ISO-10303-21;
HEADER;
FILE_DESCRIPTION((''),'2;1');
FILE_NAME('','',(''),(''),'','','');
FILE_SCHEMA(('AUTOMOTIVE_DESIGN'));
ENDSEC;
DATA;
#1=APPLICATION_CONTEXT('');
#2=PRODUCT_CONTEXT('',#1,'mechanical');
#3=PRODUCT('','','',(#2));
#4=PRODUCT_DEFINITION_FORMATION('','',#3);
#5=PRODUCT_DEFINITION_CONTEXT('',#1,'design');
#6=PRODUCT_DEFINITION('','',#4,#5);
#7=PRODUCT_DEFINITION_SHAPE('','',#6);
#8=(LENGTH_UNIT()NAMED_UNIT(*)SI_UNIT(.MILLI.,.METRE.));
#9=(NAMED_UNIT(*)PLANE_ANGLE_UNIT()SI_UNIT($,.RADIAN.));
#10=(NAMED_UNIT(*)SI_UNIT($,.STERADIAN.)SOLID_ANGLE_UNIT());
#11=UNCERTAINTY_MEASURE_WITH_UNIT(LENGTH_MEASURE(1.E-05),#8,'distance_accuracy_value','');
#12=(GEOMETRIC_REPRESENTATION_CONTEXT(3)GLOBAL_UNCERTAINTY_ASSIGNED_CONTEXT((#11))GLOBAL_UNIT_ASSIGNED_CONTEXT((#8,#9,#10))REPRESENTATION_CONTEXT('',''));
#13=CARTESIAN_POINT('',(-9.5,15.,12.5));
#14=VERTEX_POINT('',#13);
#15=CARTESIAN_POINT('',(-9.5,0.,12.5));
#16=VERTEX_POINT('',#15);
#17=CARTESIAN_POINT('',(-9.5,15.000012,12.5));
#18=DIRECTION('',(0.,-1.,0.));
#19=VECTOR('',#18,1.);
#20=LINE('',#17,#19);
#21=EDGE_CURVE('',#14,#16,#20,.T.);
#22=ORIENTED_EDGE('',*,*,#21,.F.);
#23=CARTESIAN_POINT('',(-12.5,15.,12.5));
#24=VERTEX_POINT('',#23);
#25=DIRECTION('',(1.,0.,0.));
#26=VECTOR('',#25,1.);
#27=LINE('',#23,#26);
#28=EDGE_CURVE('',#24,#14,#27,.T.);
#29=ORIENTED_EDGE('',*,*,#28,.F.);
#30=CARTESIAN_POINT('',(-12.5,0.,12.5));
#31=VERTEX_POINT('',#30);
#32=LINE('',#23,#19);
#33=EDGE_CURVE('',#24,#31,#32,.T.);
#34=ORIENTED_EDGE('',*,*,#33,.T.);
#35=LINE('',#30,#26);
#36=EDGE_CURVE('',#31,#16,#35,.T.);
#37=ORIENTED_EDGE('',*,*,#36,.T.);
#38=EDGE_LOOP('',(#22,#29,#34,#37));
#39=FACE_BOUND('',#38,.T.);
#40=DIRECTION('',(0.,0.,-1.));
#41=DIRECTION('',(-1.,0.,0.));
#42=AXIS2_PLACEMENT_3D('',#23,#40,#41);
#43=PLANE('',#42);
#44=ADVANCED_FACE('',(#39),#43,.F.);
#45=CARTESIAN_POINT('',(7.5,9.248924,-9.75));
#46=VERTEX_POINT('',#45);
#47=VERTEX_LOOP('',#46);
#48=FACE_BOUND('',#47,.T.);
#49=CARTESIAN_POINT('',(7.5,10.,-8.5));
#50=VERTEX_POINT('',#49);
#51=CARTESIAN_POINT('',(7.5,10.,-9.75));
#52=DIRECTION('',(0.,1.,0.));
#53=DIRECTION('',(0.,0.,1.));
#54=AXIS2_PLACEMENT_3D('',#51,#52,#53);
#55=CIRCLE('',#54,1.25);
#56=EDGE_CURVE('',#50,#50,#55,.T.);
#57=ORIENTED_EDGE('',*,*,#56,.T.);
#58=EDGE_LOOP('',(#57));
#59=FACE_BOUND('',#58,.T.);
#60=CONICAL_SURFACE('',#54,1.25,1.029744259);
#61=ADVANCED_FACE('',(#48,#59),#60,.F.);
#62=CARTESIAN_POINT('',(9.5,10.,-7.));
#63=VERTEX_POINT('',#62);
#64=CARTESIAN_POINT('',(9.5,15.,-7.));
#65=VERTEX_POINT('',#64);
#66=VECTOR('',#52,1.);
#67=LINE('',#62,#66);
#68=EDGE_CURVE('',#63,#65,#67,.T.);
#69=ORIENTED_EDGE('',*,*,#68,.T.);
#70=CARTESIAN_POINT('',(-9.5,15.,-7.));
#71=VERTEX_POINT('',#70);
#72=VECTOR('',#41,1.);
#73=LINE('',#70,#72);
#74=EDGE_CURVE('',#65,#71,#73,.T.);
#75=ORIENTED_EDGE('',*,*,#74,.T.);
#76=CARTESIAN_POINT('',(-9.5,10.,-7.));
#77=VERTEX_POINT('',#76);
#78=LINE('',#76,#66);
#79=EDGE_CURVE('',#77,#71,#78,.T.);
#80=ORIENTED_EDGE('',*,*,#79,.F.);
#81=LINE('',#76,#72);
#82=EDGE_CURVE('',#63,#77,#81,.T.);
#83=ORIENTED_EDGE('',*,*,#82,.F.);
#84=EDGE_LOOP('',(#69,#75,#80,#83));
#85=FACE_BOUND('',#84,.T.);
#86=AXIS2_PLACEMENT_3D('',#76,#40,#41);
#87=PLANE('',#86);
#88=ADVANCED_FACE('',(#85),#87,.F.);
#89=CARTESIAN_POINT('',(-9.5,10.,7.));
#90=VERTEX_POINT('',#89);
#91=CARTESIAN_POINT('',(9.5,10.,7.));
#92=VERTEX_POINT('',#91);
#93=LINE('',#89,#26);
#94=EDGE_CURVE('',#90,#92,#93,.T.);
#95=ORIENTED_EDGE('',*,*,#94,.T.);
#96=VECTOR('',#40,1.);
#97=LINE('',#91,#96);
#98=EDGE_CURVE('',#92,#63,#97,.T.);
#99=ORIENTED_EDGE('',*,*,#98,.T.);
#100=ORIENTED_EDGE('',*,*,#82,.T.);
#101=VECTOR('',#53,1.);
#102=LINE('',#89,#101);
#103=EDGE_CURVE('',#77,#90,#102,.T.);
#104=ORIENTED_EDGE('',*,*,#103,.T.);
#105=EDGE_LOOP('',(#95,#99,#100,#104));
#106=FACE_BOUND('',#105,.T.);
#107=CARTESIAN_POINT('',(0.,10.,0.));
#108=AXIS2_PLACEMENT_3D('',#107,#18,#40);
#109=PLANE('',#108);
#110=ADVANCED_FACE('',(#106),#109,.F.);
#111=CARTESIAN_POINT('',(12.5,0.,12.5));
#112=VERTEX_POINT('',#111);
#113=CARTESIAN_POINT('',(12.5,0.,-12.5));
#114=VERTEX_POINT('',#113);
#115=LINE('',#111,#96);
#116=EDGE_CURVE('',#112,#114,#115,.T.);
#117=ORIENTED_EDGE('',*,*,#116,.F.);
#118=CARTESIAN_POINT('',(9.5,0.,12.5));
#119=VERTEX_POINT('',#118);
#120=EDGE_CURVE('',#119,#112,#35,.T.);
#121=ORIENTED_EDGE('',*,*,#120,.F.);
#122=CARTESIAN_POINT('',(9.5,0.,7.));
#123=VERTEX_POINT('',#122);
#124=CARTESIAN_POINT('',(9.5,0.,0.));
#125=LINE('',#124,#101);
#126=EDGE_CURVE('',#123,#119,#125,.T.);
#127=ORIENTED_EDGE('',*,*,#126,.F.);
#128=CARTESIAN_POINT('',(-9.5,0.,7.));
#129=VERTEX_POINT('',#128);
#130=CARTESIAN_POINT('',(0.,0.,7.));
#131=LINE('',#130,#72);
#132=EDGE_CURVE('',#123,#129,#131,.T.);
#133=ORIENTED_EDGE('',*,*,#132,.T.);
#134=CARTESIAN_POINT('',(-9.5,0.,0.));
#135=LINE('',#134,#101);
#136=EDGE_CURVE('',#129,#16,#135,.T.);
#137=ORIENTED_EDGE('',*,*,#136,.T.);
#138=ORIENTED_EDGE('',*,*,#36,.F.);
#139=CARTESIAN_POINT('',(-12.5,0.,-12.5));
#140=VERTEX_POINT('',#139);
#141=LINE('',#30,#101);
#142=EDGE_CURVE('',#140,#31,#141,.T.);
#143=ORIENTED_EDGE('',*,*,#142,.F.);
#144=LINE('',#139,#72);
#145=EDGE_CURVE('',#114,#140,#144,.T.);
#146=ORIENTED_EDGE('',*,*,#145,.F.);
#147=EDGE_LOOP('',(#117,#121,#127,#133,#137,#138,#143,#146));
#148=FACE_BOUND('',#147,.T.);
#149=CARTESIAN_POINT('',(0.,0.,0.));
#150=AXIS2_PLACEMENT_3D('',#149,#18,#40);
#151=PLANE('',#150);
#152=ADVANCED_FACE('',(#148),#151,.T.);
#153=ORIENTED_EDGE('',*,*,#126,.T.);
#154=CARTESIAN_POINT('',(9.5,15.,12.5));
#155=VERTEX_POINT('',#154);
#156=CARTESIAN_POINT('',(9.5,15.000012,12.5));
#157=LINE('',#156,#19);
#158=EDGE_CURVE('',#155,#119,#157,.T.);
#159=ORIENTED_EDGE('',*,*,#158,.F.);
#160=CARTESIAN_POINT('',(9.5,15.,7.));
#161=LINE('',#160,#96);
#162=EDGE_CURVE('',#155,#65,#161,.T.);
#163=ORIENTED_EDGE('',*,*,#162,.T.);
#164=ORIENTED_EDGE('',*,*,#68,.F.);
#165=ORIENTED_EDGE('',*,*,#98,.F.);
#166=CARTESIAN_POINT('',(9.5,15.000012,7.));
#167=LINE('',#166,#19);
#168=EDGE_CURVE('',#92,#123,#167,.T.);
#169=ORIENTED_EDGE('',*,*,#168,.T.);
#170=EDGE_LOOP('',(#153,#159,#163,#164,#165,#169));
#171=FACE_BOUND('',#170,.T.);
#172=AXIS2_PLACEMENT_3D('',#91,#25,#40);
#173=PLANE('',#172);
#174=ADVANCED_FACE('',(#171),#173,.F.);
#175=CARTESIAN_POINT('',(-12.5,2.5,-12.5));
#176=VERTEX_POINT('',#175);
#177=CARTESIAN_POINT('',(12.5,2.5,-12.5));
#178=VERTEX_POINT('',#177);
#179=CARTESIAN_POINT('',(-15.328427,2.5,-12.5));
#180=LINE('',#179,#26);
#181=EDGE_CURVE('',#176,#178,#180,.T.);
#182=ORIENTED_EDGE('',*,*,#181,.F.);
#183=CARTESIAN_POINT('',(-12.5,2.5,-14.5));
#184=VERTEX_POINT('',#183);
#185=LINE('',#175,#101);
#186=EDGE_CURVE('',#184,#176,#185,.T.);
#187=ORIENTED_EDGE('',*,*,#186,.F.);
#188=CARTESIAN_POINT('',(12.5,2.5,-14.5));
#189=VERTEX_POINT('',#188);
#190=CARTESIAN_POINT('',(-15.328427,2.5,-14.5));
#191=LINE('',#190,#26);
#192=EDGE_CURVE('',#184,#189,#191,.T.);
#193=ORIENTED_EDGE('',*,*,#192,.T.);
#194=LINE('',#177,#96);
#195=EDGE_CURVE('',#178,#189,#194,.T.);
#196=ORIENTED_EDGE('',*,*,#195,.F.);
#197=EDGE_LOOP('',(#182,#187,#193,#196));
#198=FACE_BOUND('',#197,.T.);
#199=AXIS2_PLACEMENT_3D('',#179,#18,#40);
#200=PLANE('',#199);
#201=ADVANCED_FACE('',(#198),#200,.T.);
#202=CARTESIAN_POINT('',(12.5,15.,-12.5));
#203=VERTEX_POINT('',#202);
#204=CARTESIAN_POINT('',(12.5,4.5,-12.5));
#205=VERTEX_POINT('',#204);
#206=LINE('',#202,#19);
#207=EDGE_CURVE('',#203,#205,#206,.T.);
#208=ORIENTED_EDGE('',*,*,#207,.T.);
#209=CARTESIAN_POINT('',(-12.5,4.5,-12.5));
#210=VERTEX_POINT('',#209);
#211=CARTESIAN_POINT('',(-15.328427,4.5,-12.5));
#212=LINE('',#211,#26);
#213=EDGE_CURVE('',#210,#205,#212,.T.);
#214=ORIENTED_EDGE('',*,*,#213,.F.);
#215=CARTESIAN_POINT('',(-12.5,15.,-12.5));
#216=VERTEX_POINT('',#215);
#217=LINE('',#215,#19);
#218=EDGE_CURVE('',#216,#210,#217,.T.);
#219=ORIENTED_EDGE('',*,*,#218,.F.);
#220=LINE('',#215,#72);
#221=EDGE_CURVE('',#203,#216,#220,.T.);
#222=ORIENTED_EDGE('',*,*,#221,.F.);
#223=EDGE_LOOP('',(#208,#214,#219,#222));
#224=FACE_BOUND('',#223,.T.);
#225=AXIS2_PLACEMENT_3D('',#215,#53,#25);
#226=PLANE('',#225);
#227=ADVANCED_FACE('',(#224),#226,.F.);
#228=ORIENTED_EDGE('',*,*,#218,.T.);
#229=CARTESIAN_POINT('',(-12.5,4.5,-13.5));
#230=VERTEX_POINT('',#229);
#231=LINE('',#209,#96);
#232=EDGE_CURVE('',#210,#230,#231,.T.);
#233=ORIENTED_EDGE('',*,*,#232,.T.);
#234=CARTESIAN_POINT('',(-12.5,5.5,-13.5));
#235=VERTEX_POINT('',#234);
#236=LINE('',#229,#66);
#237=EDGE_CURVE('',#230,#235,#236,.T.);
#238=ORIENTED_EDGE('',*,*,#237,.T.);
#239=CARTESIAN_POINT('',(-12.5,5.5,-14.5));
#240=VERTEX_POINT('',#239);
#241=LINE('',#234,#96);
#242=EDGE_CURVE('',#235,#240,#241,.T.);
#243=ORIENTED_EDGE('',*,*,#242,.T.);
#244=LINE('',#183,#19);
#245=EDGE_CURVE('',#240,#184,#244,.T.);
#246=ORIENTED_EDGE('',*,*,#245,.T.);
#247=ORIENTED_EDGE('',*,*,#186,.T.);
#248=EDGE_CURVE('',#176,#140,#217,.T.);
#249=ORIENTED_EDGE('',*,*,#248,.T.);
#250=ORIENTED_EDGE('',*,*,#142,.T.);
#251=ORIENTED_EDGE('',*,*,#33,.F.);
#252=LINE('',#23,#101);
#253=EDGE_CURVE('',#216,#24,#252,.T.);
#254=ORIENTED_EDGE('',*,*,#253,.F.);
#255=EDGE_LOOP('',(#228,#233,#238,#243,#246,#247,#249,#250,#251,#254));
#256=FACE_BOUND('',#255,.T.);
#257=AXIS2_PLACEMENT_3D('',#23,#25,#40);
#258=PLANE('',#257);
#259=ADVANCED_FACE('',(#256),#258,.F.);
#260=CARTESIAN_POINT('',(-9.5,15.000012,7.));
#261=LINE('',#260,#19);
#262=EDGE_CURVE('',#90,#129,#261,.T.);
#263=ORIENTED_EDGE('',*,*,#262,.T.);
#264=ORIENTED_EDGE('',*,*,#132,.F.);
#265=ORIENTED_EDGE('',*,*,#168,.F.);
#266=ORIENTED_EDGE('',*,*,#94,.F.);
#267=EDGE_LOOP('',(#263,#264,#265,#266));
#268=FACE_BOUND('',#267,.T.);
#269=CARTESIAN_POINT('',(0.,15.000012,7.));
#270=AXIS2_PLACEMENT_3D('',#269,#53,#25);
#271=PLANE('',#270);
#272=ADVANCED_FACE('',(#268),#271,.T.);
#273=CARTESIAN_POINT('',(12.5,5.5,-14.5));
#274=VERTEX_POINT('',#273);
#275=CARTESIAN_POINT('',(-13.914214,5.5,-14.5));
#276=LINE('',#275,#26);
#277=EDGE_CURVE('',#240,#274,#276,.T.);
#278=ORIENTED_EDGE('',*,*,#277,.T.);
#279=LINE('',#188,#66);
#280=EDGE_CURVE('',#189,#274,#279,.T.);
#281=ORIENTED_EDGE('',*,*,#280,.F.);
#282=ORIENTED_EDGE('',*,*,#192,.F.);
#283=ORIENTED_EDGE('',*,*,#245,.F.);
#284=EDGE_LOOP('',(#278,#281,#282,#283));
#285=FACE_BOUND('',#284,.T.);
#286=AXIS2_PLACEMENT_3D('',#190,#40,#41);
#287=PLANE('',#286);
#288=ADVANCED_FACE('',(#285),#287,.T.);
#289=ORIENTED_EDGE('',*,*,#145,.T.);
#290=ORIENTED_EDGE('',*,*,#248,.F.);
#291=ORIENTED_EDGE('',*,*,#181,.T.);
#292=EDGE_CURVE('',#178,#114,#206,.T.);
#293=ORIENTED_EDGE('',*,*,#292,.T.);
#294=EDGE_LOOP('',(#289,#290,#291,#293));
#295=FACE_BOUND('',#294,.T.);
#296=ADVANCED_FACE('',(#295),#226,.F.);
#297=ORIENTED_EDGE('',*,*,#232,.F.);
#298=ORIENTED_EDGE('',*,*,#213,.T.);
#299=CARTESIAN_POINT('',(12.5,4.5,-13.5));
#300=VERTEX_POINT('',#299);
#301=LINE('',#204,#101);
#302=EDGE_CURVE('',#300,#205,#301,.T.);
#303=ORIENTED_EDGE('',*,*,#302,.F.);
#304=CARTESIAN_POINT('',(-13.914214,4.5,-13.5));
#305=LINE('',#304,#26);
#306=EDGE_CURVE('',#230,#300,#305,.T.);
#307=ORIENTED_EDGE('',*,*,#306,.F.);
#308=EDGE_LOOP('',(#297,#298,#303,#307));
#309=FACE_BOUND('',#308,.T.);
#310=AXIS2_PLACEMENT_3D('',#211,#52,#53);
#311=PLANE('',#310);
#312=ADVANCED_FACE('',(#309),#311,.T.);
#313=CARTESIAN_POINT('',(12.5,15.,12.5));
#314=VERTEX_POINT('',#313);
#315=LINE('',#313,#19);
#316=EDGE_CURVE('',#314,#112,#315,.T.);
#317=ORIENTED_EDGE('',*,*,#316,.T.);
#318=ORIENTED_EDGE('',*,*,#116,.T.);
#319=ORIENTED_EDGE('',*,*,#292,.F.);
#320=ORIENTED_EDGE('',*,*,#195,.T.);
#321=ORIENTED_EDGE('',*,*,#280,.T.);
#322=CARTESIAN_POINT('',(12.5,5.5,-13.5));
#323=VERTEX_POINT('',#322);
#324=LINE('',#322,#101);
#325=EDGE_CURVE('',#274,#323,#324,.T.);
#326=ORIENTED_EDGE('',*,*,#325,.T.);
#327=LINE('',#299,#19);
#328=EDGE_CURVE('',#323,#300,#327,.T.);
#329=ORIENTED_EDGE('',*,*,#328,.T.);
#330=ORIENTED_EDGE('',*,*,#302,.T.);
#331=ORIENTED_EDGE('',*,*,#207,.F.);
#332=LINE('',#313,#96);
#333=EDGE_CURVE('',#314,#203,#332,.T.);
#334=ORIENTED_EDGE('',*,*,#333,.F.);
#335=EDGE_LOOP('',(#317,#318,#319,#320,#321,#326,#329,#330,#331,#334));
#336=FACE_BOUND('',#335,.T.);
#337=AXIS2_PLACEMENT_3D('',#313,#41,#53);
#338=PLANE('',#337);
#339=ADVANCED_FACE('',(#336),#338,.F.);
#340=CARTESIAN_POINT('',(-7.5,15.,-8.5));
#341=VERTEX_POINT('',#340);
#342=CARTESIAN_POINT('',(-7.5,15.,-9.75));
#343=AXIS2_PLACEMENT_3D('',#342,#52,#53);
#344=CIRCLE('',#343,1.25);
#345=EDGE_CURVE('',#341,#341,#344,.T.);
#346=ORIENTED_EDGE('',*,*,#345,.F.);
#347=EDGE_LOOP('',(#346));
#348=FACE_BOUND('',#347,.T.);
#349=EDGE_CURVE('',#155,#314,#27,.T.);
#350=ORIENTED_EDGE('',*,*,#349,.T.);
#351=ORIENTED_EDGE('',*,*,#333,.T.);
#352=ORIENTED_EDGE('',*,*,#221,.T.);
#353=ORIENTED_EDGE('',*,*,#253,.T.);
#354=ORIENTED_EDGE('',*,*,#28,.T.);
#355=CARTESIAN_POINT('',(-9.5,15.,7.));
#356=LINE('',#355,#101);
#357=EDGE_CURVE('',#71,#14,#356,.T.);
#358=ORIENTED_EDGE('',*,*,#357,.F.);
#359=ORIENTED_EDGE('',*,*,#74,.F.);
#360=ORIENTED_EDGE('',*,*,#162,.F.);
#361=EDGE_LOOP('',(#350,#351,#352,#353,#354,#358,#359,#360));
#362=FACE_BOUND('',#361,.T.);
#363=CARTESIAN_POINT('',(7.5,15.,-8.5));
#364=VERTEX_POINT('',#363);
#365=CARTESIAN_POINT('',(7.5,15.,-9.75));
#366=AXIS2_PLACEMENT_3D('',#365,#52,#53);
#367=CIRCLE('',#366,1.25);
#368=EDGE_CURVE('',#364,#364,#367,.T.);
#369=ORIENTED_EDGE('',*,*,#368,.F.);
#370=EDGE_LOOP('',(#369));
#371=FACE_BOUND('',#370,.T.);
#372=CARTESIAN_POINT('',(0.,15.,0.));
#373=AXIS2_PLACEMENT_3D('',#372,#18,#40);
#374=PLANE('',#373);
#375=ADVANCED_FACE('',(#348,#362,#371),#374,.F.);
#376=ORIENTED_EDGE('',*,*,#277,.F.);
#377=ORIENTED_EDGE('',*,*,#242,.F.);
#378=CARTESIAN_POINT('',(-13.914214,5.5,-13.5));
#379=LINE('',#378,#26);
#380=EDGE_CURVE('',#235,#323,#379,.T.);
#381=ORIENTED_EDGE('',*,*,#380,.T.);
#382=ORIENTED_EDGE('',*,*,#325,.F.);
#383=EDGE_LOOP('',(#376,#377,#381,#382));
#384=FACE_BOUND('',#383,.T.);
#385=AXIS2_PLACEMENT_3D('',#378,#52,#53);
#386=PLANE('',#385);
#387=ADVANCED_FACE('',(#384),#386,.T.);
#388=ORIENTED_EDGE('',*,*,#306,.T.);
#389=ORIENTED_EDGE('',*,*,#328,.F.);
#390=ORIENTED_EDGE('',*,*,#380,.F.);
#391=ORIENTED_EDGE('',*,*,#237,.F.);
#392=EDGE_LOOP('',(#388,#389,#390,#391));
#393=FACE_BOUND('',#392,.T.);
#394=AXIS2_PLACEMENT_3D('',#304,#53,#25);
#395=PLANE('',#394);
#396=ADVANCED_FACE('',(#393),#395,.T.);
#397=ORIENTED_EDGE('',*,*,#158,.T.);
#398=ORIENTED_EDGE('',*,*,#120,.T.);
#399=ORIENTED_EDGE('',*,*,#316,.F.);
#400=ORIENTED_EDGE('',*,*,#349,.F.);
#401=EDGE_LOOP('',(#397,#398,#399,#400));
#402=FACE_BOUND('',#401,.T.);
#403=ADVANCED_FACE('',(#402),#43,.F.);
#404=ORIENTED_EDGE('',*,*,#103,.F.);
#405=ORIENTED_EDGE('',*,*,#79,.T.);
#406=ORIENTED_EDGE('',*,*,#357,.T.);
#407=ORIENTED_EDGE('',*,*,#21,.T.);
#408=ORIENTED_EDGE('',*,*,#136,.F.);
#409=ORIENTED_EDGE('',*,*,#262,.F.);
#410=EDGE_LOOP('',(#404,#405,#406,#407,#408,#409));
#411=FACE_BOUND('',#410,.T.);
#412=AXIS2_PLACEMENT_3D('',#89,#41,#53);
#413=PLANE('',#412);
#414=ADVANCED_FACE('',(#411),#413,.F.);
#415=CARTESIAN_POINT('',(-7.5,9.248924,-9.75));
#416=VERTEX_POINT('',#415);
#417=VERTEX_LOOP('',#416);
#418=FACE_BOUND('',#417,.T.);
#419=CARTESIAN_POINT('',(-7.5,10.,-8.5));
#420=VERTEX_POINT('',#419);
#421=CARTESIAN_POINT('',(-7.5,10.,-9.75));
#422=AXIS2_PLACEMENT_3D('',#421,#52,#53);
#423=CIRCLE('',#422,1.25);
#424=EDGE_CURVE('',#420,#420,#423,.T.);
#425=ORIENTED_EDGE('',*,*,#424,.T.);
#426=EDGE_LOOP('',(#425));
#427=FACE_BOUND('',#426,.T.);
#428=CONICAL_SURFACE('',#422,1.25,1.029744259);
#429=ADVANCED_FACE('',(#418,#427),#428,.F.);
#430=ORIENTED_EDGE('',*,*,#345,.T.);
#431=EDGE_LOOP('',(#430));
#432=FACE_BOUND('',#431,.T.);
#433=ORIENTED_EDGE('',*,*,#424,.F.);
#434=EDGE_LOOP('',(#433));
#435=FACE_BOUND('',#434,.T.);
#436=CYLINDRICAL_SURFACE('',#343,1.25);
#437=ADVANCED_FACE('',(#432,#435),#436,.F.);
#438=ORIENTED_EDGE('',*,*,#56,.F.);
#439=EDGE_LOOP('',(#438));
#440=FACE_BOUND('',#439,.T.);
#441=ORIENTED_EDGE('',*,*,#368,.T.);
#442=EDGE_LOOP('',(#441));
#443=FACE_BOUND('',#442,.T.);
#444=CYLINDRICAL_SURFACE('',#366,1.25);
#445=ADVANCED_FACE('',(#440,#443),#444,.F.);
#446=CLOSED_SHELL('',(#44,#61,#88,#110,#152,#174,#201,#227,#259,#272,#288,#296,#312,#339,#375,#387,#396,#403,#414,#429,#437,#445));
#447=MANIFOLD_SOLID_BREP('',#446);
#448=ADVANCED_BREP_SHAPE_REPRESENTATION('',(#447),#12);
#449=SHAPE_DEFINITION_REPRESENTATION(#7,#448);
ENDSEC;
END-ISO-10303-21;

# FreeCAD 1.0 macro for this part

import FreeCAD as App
import Part
import Sketcher

V = App.Vector


def add_polygon(sketch, points):
    """Adds a closed chain of lines whose ends are joined by coincident constraints."""
    first, n = sketch.GeometryCount, len(points)
    for a, b in zip(points, points[1:] + points[:1]):
        sketch.addGeometry(Part.LineSegment(App.Vector(*a, 0), App.Vector(*b, 0)), False)
    for i in range(n):
        sketch.addConstraint(Sketcher.Constraint("Coincident", first + i, 2, first + (i + 1) % n, 1))

doc = App.newDocument("Part")
body = doc.addObject("PartDesign::Body", "Body")

# Sketch on XZ plane
sketch1 = body.newObject("Sketcher::SketchObject", "Sketch")
sketch1.AttachmentSupport = (doc.getObject("XZ_Plane"), [""])
sketch1.MapMode = "FlatFace"
add_polygon(sketch1, [(-12, -12), (-12, 12), (12, 12), (12, -12)])  # lines 0-3
sketch1.addConstraint([
    Sketcher.Constraint("Vertical", 0),
    Sketcher.Constraint("Horizontal", 1),
    Sketcher.Constraint("Vertical", 2),
    Sketcher.Constraint("Horizontal", 3),
    Sketcher.Constraint("Symmetric", 0, 2, 2, 2, -1, 1),
    Sketcher.Constraint("Equal", 3, 0),
    Sketcher.Constraint("DistanceX", 1, 1, 1, 2, 25.0),
])
pad1 = body.newObject("PartDesign::Pad", "Pad")
pad1.Profile = sketch1
pad1.Length = 15
pad1.Reversed = True

# Sketch on XZ plane
sketch2 = body.newObject("Sketcher::SketchObject", "Sketch001")
sketch2.AttachmentSupport = (doc.getObject("XZ_Plane"), [""])
sketch2.MapMode = "FlatFace"
sketch2.AttachmentOffset = App.Placement(V(0, 0, -15), App.Rotation())
add_polygon(sketch2, [(-10, -7), (-10, 7), (10, 7), (10, -7)])  # lines 0-3
sketch2.addConstraint([
    Sketcher.Constraint("Vertical", 0),
    Sketcher.Constraint("Horizontal", 1),
    Sketcher.Constraint("Vertical", 2),
    Sketcher.Constraint("Horizontal", 3),
    Sketcher.Constraint("Symmetric", 0, 2, 2, 2, -1, 1),
    Sketcher.Constraint("DistanceX", 1, 1, 1, 2, 19.0),
    Sketcher.Constraint("DistanceY", 0, 1, 0, 2, 14.0),
])
pocket1 = body.newObject("PartDesign::Pocket", "Pocket")
pocket1.Profile = sketch2
pocket1.Length = 5
pocket1.Reversed = True

# Sketch on XZ plane
sketch3 = body.newObject("Sketcher::SketchObject", "Sketch002")
sketch3.AttachmentSupport = (doc.getObject("XZ_Plane"), [""])
sketch3.MapMode = "FlatFace"
sketch3.AttachmentOffset = App.Placement(V(0, 0, -15), App.Rotation())
add_polygon(sketch3, [(-10, 7), (-10, 12), (10, 12), (10, 7)])  # lines 0-3
sketch3.addConstraint([
    Sketcher.Constraint("Vertical", 0),
    Sketcher.Constraint("Horizontal", 1),
    Sketcher.Constraint("Vertical", 2),
    Sketcher.Constraint("Horizontal", 3),
    Sketcher.Constraint("DistanceX", 1, 1, 1, 2, 19.0),
    Sketcher.Constraint("DistanceY", 0, 1, 0, 2, 5.5),
    Sketcher.Constraint("DistanceY", -1, 1, 2, 2, 7.0),
    Sketcher.Constraint("DistanceX", 0, 2, -1, 1, 9.5),
])
pocket2 = body.newObject("PartDesign::Pocket", "Pocket001")
pocket2.Profile = sketch3
pocket2.Type = "ThroughAll"
pocket2.Midplane = True

# Sketch on XZ plane
sketch4 = body.newObject("Sketcher::SketchObject", "Sketch003")
sketch4.AttachmentSupport = (doc.getObject("XZ_Plane"), [""])
sketch4.MapMode = "FlatFace"
sketch4.AttachmentOffset = App.Placement(V(0, 0, -15), App.Rotation())
sketch4.addGeometry([
    Part.Circle(V(-7.5, -9.8, 0), V(0, 0, 1), 1.2),
    Part.Circle(V(7.5, -9.8, 0), V(0, 0, 1), 1.2),
], False)
sketch4.addConstraint([
    Sketcher.Constraint("Equal", 0, 1),
    Sketcher.Constraint("Symmetric", 0, 3, 1, 3, -2),
    Sketcher.Constraint("Diameter", 0, 2.5),
    Sketcher.Constraint("DistanceX", 0, 3, 1, 3, 15.0),
    Sketcher.Constraint("DistanceY", 0, 3, -1, 1, 9.75),
])
doc.recompute()
hole = body.newObject("PartDesign::Hole", "Hole")
hole.Profile = sketch4
hole.ThreadType = "None"
hole.Diameter = 2.5
hole.DepthType = "Dimension"
hole.Depth = 5
hole.DrillPoint = "Angled"
hole.DrillPointAngle = 118
hole.Reversed = True

# Sketch on YZ plane
sketch5 = body.newObject("Sketcher::SketchObject", "Sketch004")
sketch5.AttachmentSupport = (doc.getObject("YZ_Plane"), [""])
sketch5.MapMode = "FlatFace"
sketch5.AttachmentOffset = App.Placement(V(0, 0, 12.5), App.Rotation())
add_polygon(sketch5, [(4.5, -12.5), (2.5, -12.5), (2.5, -14.5), (4.5, -14.5)])  # lines 0-3
sketch5.addConstraint([
    Sketcher.Constraint("Horizontal", 0),
    Sketcher.Constraint("Vertical", 1),
    Sketcher.Constraint("Horizontal", 2),
    Sketcher.Constraint("Vertical", 3),
    Sketcher.Constraint("Equal", 2, 1),
    Sketcher.Constraint("DistanceX", 0, 2, 0, 1, 2.0),
    Sketcher.Constraint("DistanceX", -1, 1, 0, 2, 2.5),
    Sketcher.Constraint("DistanceY", 0, 2, -1, 1, 12.5),
])
pad2 = body.newObject("PartDesign::Pad", "Pad001")
pad2.Profile = sketch5
pad2.Length = 25
pad2.Reversed = True

# Sketch on YZ plane
sketch6 = body.newObject("Sketcher::SketchObject", "Sketch005")
sketch6.AttachmentSupport = (doc.getObject("YZ_Plane"), [""])
sketch6.MapMode = "FlatFace"
sketch6.AttachmentOffset = App.Placement(V(0, 0, 12.5), App.Rotation())
add_polygon(sketch6, [(5.5, -13.5), (4.5, -13.5), (4.5, -14.5), (5.5, -14.5)])  # lines 0-3
sketch6.addConstraint([
    Sketcher.Constraint("Horizontal", 0),
    Sketcher.Constraint("Vertical", 1),
    Sketcher.Constraint("Horizontal", 2),
    Sketcher.Constraint("Vertical", 3),
    Sketcher.Constraint("Equal", 2, 1),
    Sketcher.Constraint("DistanceX", 0, 2, 0, 1, 1.0),
    Sketcher.Constraint("DistanceX", -1, 1, 0, 2, 4.5),
    Sketcher.Constraint("DistanceY", 0, 2, -1, 1, 13.5),
])
pad3 = body.newObject("PartDesign::Pad", "Pad002")
pad3.Profile = sketch6
pad3.Length = 25
pad3.Reversed = True

doc.recompute()
